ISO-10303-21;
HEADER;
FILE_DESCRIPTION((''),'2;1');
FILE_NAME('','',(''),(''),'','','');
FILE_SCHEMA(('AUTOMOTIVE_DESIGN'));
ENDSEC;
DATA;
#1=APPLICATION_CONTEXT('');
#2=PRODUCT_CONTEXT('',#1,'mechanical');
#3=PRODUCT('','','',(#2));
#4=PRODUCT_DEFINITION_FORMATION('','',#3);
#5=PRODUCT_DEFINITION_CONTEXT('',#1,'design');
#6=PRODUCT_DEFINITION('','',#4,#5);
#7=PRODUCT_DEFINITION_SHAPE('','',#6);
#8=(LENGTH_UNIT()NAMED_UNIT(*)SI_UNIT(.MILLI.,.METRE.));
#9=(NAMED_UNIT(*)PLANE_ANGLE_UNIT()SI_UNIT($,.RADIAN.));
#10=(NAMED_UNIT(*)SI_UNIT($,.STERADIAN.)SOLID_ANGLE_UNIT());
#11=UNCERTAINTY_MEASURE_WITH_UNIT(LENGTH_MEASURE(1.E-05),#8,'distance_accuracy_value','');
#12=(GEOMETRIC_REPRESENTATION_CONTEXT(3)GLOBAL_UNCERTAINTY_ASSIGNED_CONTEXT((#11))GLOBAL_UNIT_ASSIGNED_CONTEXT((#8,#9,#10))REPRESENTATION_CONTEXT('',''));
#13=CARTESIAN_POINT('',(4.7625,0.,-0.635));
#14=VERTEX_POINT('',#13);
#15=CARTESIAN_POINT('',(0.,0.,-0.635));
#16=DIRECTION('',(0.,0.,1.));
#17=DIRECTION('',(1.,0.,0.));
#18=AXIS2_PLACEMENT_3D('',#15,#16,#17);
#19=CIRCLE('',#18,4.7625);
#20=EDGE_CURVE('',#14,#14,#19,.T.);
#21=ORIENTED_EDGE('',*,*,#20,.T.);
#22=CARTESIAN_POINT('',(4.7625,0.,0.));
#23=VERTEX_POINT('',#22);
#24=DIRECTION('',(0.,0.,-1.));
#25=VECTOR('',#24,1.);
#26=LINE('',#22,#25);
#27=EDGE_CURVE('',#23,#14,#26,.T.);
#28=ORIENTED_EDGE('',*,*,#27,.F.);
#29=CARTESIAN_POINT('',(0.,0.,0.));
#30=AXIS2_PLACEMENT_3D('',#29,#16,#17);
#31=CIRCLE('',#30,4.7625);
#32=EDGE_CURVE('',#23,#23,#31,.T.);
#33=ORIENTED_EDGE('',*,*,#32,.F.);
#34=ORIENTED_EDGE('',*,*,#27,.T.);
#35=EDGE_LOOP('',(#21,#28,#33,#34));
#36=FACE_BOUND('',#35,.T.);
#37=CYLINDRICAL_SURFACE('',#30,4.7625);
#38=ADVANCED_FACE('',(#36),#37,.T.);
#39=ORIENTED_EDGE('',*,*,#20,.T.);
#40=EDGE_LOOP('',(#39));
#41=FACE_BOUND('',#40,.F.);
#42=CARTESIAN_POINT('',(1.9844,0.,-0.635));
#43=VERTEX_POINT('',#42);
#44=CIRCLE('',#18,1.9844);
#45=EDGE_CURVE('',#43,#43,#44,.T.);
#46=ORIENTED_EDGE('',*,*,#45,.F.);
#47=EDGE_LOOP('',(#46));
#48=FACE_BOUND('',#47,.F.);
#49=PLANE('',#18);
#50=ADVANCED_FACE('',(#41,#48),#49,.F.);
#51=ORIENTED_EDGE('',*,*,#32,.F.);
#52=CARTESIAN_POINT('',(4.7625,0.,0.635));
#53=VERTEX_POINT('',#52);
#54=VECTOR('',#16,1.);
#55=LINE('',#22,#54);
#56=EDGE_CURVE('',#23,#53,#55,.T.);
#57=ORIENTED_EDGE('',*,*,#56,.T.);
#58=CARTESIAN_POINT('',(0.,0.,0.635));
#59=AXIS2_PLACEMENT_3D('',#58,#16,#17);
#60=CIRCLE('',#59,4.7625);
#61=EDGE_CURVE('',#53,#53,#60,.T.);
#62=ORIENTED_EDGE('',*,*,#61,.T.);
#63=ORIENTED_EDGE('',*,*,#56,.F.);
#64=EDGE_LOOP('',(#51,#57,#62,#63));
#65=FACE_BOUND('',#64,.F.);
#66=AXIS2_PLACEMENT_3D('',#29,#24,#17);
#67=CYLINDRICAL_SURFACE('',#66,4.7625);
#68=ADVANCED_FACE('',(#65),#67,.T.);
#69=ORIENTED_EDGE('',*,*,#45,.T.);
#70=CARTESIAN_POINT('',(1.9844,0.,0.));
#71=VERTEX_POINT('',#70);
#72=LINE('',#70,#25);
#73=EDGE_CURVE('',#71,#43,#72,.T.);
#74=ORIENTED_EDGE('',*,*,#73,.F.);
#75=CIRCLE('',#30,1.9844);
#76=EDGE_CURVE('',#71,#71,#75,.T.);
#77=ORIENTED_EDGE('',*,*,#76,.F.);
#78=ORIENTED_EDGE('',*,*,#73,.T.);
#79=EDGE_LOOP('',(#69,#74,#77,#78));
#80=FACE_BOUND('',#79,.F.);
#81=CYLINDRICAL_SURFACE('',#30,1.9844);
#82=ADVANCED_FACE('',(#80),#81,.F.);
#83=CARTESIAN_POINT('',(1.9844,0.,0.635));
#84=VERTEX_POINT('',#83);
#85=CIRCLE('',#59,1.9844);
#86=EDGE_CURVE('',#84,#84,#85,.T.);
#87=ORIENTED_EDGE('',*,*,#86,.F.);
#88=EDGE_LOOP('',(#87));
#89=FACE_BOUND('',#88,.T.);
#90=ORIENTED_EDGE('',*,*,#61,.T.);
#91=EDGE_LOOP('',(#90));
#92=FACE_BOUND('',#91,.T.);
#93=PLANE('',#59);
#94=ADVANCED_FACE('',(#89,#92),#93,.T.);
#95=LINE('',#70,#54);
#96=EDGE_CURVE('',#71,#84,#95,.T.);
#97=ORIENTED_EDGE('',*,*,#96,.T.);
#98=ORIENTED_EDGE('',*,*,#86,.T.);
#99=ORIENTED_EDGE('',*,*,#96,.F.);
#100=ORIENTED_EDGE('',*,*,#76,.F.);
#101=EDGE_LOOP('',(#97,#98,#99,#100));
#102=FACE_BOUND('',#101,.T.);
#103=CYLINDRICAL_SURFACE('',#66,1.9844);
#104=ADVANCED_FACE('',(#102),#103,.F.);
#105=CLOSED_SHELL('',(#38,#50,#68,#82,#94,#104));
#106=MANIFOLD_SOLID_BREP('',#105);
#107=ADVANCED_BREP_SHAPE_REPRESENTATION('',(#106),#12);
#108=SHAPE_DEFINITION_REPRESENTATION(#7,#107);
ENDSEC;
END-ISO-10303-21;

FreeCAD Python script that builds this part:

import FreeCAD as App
import Part
import Sketcher

V = App.Vector
Q = App.Units.Quantity

doc = App.newDocument("Part")
body = doc.addObject("PartDesign::Body", "Body")

sketch1 = body.newObject("Sketcher::SketchObject", "Sketch")
sketch1.AttachmentSupport = (doc.getObject("XY_Plane"), [""])
sketch1.MapMode = "FlatFace"
sketch1.addGeometry(Part.Circle(V(0, 0, 0), V(0, 0, 1), 4.8), False)
sketch1.addGeometry(Part.Circle(V(0, 0, 0), V(0, 0, 1), 2), False)
sketch1.addConstraint(Sketcher.Constraint("Coincident", 0, 3, -1, 1))
sketch1.addConstraint(Sketcher.Constraint("Coincident", 1, 3, -1, 1))
sketch1.addConstraint(Sketcher.Constraint("Diameter", 0, Q("0.375 in")))
sketch1.addConstraint(Sketcher.Constraint("Diameter", 1, Q("0.156252 in")))
pad1 = body.newObject("PartDesign::Pad", "Pad")
pad1.Profile = sketch1
pad1.Length = Q("0.05 in")
pad1.Midplane = True

doc.recompute()
